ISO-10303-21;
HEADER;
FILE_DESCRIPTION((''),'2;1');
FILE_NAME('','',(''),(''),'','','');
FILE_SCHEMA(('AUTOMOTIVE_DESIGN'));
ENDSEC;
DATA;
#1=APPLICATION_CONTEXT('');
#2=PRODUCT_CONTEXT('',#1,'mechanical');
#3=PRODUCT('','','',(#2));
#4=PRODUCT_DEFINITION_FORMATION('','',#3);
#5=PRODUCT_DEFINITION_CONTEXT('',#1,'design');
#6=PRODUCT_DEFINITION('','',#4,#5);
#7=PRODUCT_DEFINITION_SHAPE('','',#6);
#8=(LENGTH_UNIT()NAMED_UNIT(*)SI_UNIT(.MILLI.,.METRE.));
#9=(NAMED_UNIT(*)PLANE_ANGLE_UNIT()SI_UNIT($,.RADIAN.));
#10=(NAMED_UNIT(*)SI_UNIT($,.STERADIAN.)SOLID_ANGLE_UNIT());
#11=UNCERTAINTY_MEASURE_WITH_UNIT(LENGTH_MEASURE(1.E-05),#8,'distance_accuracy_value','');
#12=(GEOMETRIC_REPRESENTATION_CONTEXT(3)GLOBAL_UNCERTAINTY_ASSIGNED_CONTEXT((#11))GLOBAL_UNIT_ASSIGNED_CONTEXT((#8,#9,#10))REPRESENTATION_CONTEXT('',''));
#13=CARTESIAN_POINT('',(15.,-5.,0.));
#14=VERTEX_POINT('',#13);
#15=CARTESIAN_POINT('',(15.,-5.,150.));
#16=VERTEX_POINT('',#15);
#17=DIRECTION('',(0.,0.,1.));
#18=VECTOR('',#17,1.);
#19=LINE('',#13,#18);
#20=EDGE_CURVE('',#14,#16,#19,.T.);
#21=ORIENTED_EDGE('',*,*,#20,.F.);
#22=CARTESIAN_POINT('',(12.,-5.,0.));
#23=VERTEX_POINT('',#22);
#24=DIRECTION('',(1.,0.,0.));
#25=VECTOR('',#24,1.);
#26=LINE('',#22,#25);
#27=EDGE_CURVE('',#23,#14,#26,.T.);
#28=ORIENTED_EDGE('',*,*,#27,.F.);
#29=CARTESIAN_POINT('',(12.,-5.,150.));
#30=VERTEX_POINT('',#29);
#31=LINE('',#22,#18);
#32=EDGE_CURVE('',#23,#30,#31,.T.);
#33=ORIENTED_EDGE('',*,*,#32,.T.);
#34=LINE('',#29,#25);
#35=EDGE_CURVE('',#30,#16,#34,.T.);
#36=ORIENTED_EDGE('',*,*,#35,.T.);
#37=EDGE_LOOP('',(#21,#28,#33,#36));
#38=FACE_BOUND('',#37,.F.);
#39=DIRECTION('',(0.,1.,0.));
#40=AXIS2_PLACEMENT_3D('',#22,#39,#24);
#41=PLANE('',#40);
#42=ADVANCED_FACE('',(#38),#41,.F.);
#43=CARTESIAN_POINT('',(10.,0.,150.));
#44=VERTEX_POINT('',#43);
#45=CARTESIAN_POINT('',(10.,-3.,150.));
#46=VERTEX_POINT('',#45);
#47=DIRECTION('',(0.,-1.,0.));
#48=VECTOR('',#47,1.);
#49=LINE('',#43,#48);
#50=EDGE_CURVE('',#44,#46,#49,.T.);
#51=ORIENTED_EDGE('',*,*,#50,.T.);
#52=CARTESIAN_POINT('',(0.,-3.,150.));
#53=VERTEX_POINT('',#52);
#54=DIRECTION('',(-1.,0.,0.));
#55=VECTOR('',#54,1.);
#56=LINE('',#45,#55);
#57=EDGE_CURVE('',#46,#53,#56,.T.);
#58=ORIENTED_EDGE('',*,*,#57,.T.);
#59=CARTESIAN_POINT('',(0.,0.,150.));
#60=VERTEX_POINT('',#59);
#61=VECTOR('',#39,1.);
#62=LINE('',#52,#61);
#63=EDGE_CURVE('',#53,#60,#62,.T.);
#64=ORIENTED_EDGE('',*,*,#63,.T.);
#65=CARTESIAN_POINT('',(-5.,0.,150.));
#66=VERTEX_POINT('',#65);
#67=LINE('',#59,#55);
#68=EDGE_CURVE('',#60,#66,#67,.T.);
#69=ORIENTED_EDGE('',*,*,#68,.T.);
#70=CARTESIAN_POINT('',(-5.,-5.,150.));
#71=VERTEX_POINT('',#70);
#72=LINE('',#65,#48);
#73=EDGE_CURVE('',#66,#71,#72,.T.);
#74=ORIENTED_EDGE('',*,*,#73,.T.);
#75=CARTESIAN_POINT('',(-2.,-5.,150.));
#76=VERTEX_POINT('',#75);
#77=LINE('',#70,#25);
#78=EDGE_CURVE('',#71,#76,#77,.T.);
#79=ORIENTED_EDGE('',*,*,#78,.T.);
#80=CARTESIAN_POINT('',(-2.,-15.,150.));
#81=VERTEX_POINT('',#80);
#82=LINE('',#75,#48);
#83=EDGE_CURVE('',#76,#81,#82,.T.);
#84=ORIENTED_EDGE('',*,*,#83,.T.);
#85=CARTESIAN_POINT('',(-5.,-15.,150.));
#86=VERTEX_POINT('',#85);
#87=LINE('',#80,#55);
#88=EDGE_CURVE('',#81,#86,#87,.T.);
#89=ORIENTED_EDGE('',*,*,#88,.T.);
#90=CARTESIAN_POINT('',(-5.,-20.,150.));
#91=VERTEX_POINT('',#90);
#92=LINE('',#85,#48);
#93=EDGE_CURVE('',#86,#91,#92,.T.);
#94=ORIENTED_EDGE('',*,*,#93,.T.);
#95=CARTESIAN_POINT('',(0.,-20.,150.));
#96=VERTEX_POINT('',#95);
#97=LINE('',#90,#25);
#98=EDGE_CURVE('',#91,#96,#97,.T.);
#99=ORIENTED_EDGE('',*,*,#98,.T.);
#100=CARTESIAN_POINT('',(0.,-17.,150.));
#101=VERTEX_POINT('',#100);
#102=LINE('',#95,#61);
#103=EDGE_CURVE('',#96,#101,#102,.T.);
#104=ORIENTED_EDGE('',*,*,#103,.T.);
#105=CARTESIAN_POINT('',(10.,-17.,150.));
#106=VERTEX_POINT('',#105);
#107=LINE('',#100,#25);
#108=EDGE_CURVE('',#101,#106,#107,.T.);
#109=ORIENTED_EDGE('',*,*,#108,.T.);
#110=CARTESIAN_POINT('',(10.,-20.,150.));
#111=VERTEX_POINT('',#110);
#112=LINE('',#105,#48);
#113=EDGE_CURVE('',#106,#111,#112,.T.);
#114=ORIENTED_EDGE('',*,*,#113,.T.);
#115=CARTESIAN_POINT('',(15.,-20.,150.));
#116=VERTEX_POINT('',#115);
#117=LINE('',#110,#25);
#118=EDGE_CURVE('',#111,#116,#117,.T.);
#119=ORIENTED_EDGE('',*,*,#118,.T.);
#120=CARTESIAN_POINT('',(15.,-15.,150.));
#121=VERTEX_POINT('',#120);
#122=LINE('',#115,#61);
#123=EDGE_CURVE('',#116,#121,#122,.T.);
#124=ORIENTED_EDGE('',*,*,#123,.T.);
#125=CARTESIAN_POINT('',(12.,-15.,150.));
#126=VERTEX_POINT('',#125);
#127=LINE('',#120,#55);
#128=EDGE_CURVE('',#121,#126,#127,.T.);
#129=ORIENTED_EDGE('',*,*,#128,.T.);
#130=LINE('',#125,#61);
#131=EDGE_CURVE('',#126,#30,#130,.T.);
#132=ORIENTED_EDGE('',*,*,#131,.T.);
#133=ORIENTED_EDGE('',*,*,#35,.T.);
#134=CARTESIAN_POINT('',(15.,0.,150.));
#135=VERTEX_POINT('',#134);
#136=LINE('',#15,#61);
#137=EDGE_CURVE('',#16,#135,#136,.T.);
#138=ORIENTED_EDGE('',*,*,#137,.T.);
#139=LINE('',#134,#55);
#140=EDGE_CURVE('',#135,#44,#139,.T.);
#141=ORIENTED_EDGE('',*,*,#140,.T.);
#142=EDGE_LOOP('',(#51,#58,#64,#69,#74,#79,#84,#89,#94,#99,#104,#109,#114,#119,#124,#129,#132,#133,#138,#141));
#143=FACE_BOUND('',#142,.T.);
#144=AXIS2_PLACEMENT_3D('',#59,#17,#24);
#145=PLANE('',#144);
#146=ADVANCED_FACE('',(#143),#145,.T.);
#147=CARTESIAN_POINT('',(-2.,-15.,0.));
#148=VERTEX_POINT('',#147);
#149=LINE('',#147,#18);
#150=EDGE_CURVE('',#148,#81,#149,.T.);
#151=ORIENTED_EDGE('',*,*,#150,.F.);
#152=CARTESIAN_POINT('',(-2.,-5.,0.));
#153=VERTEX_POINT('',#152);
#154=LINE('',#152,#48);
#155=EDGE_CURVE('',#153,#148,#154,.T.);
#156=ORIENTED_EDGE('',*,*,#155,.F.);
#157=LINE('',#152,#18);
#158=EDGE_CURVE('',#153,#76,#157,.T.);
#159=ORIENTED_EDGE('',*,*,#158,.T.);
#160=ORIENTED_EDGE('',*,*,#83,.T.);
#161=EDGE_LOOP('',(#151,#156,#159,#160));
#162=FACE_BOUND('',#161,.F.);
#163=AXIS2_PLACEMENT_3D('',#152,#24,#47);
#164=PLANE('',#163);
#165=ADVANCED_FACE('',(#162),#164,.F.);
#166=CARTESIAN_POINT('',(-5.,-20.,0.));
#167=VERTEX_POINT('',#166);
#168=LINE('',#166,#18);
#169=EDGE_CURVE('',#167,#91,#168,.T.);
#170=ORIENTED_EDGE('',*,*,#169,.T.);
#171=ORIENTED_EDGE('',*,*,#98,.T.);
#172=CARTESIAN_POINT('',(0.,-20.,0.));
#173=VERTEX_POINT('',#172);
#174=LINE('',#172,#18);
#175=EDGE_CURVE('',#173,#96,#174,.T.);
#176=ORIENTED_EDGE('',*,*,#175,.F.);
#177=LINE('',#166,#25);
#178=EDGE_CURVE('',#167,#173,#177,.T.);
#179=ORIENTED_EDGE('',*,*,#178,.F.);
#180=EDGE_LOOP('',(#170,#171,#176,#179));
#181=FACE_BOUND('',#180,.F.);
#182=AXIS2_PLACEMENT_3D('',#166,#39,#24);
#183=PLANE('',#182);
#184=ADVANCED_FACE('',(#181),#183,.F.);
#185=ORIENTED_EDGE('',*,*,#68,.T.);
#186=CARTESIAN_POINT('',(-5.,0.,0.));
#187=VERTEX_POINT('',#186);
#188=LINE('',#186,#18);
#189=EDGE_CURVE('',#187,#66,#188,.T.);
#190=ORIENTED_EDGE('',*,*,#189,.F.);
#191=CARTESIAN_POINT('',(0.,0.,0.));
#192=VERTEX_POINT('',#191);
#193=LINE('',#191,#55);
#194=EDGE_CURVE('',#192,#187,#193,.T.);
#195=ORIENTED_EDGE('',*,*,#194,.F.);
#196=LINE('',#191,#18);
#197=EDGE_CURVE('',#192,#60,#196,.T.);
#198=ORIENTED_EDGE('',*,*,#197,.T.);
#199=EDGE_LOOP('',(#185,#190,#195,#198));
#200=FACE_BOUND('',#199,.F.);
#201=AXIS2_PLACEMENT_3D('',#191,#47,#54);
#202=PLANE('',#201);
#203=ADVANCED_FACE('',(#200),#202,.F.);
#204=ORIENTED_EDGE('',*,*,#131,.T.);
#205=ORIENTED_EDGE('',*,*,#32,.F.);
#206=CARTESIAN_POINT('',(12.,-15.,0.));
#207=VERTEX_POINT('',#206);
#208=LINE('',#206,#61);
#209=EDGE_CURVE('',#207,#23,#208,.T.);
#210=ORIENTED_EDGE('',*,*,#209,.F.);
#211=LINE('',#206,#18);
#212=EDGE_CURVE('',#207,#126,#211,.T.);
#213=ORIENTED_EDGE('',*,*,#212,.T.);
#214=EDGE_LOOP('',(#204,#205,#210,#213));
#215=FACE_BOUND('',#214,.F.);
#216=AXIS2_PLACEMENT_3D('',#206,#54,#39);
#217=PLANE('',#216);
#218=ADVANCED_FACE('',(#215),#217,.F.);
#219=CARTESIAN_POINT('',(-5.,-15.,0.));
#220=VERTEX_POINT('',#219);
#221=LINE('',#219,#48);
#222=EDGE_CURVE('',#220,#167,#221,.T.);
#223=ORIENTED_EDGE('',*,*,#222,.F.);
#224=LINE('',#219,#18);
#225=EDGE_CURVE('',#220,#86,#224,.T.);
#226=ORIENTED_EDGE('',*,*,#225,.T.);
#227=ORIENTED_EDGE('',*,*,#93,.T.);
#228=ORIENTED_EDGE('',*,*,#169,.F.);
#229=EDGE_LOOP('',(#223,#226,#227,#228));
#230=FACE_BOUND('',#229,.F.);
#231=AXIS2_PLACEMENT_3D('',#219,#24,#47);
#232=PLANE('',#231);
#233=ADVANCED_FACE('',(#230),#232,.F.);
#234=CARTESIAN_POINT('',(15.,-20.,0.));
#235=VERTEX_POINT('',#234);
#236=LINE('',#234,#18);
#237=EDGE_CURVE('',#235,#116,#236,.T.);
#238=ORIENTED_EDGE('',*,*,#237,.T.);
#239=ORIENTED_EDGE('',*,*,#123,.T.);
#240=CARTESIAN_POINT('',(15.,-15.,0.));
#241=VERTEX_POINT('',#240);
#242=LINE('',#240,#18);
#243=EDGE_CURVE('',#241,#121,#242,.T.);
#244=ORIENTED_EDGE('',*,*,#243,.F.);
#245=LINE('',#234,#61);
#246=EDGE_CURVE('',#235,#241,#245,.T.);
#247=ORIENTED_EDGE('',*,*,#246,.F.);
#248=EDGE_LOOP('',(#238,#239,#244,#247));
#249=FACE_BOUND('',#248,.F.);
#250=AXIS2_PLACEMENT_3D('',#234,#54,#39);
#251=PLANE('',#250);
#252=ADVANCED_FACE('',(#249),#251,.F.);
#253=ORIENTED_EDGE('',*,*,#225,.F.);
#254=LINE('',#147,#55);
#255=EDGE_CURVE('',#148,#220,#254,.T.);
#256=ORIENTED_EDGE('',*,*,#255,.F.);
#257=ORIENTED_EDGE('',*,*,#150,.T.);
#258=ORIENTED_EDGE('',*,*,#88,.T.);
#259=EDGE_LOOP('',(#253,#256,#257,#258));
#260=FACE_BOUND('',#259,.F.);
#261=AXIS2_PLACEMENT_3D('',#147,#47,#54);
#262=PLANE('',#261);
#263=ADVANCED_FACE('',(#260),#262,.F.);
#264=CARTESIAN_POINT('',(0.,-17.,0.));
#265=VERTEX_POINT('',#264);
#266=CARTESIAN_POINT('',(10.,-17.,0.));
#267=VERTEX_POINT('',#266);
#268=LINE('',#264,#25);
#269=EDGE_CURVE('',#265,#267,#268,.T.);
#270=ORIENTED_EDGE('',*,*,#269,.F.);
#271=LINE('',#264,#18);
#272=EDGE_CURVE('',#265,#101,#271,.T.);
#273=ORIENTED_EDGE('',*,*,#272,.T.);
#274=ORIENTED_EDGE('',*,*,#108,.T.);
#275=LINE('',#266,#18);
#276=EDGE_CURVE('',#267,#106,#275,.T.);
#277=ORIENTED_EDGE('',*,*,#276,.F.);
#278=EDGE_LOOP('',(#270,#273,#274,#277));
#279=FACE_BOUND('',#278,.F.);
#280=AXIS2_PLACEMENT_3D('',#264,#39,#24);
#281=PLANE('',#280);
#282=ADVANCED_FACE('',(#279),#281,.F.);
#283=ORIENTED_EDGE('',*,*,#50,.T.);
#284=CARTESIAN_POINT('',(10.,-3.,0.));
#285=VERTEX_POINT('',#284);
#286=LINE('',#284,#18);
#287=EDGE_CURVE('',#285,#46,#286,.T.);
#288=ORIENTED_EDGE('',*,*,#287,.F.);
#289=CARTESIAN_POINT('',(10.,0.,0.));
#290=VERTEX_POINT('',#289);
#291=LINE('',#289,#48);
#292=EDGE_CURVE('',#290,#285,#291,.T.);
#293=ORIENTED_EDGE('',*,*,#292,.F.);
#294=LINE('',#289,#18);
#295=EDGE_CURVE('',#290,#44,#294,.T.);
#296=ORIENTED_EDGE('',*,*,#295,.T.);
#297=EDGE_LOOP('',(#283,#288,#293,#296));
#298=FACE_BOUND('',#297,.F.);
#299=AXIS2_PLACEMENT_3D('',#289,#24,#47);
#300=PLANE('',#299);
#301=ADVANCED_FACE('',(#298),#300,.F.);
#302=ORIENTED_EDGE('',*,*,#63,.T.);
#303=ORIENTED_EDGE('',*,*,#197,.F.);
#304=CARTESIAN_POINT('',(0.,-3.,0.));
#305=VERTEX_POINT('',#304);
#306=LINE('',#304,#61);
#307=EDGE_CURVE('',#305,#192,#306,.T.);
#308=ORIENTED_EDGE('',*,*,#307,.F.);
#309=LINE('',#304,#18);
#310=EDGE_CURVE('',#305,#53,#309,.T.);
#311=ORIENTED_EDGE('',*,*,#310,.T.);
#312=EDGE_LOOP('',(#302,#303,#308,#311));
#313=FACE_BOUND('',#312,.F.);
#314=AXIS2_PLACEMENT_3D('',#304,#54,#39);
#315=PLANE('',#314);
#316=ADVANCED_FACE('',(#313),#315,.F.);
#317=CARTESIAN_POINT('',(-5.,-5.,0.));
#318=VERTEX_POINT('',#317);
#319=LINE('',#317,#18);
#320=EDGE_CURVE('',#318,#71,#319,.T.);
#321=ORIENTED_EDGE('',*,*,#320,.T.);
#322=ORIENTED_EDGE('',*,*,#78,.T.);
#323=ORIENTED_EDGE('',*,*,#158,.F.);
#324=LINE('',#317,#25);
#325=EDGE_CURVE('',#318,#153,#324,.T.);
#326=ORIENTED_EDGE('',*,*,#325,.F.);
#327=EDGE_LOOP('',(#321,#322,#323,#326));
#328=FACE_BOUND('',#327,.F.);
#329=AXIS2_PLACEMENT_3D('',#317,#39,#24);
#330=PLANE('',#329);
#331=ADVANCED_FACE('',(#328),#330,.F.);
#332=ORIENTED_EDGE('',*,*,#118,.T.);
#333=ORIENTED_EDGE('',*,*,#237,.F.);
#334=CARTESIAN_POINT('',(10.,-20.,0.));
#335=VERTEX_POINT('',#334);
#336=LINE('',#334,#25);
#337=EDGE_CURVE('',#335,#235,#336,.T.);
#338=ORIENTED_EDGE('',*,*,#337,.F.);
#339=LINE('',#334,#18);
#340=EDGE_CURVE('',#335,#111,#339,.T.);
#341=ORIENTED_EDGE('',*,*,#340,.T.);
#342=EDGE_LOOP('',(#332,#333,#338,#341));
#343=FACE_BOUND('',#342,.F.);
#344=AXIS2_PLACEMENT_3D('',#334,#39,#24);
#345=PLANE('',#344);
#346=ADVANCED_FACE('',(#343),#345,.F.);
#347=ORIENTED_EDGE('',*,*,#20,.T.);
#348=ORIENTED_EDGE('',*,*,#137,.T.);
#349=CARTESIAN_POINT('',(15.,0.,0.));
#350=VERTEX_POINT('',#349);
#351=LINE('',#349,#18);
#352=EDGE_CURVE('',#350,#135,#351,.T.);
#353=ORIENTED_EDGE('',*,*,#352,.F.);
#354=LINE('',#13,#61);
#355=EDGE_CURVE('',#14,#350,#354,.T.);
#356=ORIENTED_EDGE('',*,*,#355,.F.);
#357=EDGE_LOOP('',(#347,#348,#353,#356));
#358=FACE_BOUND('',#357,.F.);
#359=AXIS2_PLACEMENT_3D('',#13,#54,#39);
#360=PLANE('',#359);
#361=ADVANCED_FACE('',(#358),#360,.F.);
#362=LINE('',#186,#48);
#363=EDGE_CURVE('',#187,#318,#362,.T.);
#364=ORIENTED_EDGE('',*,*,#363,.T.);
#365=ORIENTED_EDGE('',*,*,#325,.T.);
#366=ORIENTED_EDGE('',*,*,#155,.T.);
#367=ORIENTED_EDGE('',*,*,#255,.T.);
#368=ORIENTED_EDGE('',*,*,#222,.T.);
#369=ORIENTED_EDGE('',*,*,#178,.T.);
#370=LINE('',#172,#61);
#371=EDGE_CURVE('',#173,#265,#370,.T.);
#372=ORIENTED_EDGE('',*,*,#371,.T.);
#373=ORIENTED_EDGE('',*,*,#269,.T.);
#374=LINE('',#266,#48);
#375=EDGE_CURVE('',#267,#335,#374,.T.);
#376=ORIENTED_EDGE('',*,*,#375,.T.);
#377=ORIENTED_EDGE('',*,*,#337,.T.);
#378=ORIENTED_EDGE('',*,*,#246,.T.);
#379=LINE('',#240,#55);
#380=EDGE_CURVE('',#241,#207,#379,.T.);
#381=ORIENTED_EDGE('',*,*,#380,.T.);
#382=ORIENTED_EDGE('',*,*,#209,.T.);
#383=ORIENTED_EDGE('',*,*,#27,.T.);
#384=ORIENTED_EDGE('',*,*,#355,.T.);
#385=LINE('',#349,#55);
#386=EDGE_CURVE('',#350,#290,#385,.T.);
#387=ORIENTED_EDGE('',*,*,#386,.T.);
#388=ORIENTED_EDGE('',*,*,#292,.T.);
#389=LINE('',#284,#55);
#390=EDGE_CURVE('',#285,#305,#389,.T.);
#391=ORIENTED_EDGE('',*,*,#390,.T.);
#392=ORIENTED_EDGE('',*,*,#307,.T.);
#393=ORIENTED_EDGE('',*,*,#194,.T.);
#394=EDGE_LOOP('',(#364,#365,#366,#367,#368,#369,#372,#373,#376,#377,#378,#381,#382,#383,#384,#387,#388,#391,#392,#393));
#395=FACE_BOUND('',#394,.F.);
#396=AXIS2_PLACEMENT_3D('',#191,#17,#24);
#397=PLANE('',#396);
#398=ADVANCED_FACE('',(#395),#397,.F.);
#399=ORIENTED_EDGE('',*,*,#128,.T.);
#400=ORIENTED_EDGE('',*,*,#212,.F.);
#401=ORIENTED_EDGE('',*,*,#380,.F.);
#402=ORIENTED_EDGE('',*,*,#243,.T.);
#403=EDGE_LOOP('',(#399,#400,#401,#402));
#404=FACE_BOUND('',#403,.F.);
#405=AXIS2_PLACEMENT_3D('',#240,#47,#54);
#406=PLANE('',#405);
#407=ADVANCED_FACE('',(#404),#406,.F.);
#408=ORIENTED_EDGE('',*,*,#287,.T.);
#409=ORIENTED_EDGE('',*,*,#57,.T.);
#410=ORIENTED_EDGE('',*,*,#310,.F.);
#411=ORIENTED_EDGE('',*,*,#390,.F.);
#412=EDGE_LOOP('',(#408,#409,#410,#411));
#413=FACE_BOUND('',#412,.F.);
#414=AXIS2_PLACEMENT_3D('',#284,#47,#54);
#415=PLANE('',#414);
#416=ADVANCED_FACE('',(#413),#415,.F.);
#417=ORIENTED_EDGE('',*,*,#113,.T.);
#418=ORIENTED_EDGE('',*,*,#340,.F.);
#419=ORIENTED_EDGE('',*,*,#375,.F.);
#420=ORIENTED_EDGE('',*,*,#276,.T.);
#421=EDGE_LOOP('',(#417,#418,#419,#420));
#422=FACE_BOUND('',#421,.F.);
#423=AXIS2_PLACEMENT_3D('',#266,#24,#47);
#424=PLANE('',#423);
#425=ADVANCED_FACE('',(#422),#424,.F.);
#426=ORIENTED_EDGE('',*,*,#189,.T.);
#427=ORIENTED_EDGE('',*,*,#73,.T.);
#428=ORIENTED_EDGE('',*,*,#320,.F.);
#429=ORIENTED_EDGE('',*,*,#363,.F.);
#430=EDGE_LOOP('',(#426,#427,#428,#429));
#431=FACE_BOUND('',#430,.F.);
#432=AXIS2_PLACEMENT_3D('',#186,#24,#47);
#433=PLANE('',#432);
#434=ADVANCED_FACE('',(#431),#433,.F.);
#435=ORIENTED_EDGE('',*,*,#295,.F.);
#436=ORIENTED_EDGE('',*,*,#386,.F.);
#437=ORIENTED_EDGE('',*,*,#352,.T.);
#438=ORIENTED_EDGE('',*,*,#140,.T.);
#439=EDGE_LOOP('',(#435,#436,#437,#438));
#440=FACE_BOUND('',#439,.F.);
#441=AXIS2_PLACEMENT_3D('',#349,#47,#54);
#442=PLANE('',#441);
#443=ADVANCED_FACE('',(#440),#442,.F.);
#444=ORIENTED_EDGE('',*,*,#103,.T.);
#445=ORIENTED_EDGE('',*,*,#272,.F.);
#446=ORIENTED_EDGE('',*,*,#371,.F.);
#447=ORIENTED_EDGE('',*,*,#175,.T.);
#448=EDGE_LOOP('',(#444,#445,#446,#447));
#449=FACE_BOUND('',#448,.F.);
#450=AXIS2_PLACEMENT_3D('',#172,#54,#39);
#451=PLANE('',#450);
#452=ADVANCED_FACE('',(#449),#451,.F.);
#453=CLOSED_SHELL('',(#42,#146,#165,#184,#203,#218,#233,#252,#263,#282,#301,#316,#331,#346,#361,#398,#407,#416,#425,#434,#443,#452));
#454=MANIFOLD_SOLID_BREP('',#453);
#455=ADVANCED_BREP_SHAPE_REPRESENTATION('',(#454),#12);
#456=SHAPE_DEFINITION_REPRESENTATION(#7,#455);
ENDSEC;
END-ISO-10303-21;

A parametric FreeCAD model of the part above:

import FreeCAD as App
import Part
import Sketcher

V = App.Vector

doc = App.newDocument("Part")
body = doc.addObject("PartDesign::Body", "Body")

# Sketch on XY plane
sketch1 = body.newObject("Sketcher::SketchObject", "Sketch")
sketch1.AttachmentSupport = (doc.getObject("XY_Plane"), [""])
sketch1.MapMode = "FlatFace"
sketch1.addGeometry([
    Part.LineSegment(V(0, -3, 0), V(0, 0, 0)),  # 0
    Part.LineSegment(V(0, 0, 0), V(-5, 0, 0)),  # 1
    Part.LineSegment(V(-5, 0, 0), V(-5, -5, 0)),  # 2
    Part.LineSegment(V(-5, -5, 0), V(-2, -5, 0)),  # 3
    Part.LineSegment(V(-2, -5, 0), V(-2, -15, 0)),  # 4
    Part.LineSegment(V(-2, -15, 0), V(-5, -15, 0)),  # 5
    Part.LineSegment(V(-5, -15, 0), V(-5, -20, 0)),  # 6
    Part.LineSegment(V(-5, -20, 0), V(0, -20, 0)),  # 7
    Part.LineSegment(V(0, -20, 0), V(0, -17, 0)),  # 8
    Part.LineSegment(V(0, -17, 0), V(10, -17, 0)),  # 9
    Part.LineSegment(V(10, -17, 0), V(10, -20, 0)),  # 10
    Part.LineSegment(V(10, -20, 0), V(15, -20, 0)),  # 11
    Part.LineSegment(V(15, -20, 0), V(15, -15, 0)),  # 12
    Part.LineSegment(V(15, -15, 0), V(12, -15, 0)),  # 13
    Part.LineSegment(V(12, -15, 0), V(12, -5, 0)),  # 14
    Part.LineSegment(V(12, -5, 0), V(15, -5, 0)),  # 15
    Part.LineSegment(V(15, -5, 0), V(15, 0, 0)),  # 16
    Part.LineSegment(V(15, 0, 0), V(10, 0, 0)),  # 17
    Part.LineSegment(V(10, 0, 0), V(10, -3, 0)),  # 18
    Part.LineSegment(V(10, -3, 0), V(0, -3, 0)),  # 19
], False)
sketch1.addConstraint([
    Sketcher.Constraint("Coincident", 0, 2, 1, 1),
    Sketcher.Constraint("Coincident", 1, 2, 2, 1),
    Sketcher.Constraint("Coincident", 2, 2, 3, 1),
    Sketcher.Constraint("Coincident", 3, 2, 4, 1),
    Sketcher.Constraint("Coincident", 4, 2, 5, 1),
    Sketcher.Constraint("Coincident", 5, 2, 6, 1),
    Sketcher.Constraint("Coincident", 6, 2, 7, 1),
    Sketcher.Constraint("Coincident", 7, 2, 8, 1),
    Sketcher.Constraint("Coincident", 8, 2, 9, 1),
    Sketcher.Constraint("Coincident", 9, 2, 10, 1),
    Sketcher.Constraint("Coincident", 10, 2, 11, 1),
    Sketcher.Constraint("Coincident", 11, 2, 12, 1),
    Sketcher.Constraint("Coincident", 12, 2, 13, 1),
    Sketcher.Constraint("Coincident", 13, 2, 14, 1),
    Sketcher.Constraint("Coincident", 14, 2, 15, 1),
    Sketcher.Constraint("Coincident", 15, 2, 16, 1),
    Sketcher.Constraint("Coincident", 16, 2, 17, 1),
    Sketcher.Constraint("Coincident", 17, 2, 18, 1),
    Sketcher.Constraint("Coincident", 18, 2, 19, 1),
    Sketcher.Constraint("Coincident", 19, 2, 0, 1),
    Sketcher.Constraint("Vertical", 0),
    Sketcher.Constraint("Horizontal", 1),
    Sketcher.Constraint("Vertical", 2),
    Sketcher.Constraint("Horizontal", 3),
    Sketcher.Constraint("Vertical", 4),
    Sketcher.Constraint("Horizontal", 5),
    Sketcher.Constraint("Vertical", 6),
    Sketcher.Constraint("Horizontal", 7),
    Sketcher.Constraint("Vertical", 8),
    Sketcher.Constraint("Horizontal", 9),
    Sketcher.Constraint("Vertical", 10),
    Sketcher.Constraint("Horizontal", 11),
    Sketcher.Constraint("Vertical", 12),
    Sketcher.Constraint("Horizontal", 13),
    Sketcher.Constraint("Vertical", 14),
    Sketcher.Constraint("Horizontal", 15),
    Sketcher.Constraint("Vertical", 16),
    Sketcher.Constraint("Horizontal", 17),
    Sketcher.Constraint("Vertical", 18),
    Sketcher.Constraint("Horizontal", 19),
    Sketcher.Constraint("Coincident", 0, 2, -1, 1),
    Sketcher.Constraint("PointOnObject", 7, 2, -2),
    Sketcher.Constraint("PointOnObject", 16, 2, -1),
    Sketcher.Constraint("Horizontal", 7, 2, 10, 2),
    Sketcher.Constraint("Horizontal", 5, 2, 12, 2),
    Sketcher.Constraint("Horizontal", 3, 2, 14, 2),
    Sketcher.Constraint("Vertical", 2, 2, 5, 2),
    Sketcher.Constraint("Vertical", 12, 2, 15, 2),
    Sketcher.Constraint("Vertical", 10, 2, 17, 2),
    Sketcher.Constraint("Equal", 7, 11),
    Sketcher.Constraint("Equal", 5, 13),
    Sketcher.Constraint("Equal", 15, 0),
    Sketcher.Constraint("Equal", 17, 2),
    Sketcher.Constraint("Equal", 19, 4),
    Sketcher.Constraint("Equal", 2, 6),
    Sketcher.Constraint("Equal", 0, 8),
    Sketcher.Constraint("DistanceX", 1, 2, 1, 1, 5.0),
    Sketcher.Constraint("DistanceX", 3, 1, 3, 2, 3.0),
    Sketcher.Constraint("DistanceX", 9, 1, 9, 2, 10.0),
])
pad1 = body.newObject("PartDesign::Pad", "Pad")
pad1.Profile = sketch1
pad1.Length = 150

doc.recompute()
